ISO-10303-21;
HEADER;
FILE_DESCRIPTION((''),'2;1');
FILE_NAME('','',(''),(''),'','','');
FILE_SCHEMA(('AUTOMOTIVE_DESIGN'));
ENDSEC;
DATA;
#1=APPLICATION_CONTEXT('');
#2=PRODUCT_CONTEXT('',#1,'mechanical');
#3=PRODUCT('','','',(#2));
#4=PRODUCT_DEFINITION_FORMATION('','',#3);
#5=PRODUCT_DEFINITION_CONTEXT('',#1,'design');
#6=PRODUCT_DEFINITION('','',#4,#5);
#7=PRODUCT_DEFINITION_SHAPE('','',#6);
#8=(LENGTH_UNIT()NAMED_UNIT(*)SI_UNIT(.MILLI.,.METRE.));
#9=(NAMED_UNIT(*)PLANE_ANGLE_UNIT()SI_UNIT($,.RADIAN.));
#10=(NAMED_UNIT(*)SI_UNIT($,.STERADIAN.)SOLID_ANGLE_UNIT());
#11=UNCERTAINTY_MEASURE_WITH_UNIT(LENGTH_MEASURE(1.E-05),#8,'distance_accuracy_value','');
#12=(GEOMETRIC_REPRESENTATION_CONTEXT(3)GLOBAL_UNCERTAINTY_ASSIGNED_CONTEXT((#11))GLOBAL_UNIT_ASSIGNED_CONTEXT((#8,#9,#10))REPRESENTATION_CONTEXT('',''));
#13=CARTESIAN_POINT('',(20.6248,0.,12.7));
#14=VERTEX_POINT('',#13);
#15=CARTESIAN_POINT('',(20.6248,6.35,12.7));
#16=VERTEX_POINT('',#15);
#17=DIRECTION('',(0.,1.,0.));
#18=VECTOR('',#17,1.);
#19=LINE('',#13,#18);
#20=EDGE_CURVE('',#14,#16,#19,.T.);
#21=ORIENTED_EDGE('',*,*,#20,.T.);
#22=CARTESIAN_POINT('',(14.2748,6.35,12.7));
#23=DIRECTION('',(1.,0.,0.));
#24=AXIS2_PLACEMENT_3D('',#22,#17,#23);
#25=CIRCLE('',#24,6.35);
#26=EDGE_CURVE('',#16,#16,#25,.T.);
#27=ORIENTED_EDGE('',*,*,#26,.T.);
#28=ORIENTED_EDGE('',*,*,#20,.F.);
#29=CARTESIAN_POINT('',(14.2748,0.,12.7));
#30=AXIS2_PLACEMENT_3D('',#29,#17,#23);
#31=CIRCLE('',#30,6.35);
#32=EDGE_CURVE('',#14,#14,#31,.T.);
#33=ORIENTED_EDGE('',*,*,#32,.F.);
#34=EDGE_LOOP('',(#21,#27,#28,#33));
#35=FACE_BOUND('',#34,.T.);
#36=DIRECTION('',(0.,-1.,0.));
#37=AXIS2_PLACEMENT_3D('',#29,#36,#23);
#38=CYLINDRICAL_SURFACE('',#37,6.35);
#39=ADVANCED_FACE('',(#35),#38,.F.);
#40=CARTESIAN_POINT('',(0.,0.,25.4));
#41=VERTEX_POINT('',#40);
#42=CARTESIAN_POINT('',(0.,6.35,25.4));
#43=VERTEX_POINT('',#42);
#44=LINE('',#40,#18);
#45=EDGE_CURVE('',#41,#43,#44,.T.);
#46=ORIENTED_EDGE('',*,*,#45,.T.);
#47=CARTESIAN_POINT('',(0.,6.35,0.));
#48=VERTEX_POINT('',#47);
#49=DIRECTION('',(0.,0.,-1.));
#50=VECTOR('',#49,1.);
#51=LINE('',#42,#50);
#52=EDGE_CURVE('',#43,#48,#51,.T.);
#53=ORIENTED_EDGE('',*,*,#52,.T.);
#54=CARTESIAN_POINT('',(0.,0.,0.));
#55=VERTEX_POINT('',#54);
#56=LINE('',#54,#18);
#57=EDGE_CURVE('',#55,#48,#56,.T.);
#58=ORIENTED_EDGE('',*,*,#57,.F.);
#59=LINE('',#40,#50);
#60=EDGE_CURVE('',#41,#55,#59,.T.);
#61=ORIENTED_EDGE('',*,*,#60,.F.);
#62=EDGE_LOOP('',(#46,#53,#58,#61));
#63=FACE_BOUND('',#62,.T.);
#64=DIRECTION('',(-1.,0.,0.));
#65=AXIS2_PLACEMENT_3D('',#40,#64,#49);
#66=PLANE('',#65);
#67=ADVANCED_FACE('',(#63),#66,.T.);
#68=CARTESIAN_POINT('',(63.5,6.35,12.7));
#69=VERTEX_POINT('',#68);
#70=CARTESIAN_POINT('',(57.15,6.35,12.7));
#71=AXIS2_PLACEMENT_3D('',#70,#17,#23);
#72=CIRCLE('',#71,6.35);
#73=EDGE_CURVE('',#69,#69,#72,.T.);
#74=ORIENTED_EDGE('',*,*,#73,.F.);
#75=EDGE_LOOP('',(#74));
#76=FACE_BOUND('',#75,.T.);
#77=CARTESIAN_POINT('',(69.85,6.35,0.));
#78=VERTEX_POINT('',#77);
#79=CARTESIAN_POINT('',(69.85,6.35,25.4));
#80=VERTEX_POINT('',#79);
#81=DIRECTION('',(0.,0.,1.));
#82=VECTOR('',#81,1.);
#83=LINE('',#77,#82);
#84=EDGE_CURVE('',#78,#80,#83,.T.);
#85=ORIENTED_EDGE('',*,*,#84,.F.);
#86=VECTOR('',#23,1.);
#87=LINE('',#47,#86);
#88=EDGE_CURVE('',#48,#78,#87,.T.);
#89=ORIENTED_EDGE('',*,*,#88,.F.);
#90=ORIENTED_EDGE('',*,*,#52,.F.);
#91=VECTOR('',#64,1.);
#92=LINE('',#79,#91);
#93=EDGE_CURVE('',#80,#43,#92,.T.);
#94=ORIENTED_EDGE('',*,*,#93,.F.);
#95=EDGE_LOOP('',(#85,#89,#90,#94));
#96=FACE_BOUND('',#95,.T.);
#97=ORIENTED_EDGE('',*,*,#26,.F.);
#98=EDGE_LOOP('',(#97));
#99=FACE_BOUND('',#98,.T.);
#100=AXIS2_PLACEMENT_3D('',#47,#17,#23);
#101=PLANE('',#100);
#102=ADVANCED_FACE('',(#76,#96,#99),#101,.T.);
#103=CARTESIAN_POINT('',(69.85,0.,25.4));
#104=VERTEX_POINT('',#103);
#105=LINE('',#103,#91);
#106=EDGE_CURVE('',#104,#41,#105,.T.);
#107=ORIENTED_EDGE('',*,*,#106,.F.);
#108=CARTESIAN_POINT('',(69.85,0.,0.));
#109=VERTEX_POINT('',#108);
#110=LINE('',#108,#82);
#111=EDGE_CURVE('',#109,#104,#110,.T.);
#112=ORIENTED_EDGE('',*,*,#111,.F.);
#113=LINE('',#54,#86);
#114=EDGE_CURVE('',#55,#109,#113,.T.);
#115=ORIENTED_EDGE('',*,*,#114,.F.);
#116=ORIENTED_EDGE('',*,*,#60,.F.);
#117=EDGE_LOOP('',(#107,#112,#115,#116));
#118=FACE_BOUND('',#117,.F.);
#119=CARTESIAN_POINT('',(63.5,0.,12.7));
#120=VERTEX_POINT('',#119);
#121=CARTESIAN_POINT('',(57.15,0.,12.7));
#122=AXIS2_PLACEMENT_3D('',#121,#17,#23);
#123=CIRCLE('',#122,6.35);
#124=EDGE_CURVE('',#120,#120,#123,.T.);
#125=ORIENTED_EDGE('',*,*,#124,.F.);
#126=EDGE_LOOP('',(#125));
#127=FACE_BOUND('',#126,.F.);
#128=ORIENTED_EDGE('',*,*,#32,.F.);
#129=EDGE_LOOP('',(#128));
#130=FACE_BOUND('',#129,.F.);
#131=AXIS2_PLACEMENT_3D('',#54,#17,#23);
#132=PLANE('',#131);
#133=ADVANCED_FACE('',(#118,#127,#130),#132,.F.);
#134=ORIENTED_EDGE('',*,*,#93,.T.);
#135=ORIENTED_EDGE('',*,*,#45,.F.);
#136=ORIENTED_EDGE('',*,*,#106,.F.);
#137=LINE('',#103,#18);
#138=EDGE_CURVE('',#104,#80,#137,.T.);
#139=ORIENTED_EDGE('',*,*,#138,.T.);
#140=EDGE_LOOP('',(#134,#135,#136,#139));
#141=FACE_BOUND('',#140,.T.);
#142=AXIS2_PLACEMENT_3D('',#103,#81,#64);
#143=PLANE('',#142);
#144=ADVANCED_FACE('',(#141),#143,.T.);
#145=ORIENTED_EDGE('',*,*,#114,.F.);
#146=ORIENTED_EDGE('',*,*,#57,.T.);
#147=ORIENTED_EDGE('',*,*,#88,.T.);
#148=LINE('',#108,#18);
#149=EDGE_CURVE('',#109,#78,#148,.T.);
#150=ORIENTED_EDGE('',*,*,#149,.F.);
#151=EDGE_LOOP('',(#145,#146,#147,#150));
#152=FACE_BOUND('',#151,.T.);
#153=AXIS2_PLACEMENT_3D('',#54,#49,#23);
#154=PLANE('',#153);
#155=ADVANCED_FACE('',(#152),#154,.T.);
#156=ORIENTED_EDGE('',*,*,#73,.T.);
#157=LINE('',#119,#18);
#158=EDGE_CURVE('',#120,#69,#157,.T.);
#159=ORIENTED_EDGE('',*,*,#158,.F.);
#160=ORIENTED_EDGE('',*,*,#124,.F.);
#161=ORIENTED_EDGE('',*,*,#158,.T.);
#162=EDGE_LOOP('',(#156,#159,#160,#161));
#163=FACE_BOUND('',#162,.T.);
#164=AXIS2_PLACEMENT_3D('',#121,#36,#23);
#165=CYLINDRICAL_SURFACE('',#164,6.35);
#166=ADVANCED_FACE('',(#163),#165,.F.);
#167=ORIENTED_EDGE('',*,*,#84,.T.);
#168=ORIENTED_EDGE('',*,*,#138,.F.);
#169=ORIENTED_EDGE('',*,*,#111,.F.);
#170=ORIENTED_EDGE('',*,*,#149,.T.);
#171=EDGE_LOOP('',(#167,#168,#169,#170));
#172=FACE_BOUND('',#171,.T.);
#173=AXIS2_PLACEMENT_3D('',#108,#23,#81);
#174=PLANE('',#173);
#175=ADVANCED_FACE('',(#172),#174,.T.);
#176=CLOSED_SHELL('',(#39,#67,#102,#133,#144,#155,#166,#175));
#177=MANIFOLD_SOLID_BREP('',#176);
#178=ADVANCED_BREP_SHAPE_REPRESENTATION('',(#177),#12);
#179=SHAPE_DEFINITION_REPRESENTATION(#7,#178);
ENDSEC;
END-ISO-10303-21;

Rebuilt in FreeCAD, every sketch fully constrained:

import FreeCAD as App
import Part
import Sketcher
from FreeCAD import Vector
Q = App.Units.Quantity


def add_polygon(sketch, points):
    """Adds a closed chain of lines whose ends are joined by coincident constraints."""
    first, n = sketch.GeometryCount, len(points)
    for a, b in zip(points, points[1:] + points[:1]):
        sketch.addGeometry(Part.LineSegment(App.Vector(*a, 0), App.Vector(*b, 0)), False)
    for i in range(n):
        sketch.addConstraint(Sketcher.Constraint("Coincident", first + i, 2, first + (i + 1) % n, 1))

doc = App.newDocument("Part")
body = doc.addObject("PartDesign::Body", "Body")

# Sketch on XZ plane
sketch1 = body.newObject("Sketcher::SketchObject", "Sketch")
sketch1.AttachmentSupport = (doc.getObject("XZ_Plane"), [""])
sketch1.MapMode = "FlatFace"
add_polygon(sketch1, [(70, 0), (0, 0), (0, 25), (70, 25)])  # lines 0-3
sketch1.addGeometry(Part.Circle(Vector(14, 13, 0), Vector(0, 0, 1), 6), False)  # 4
sketch1.addGeometry(Part.Circle(Vector(57, 13, 0), Vector(0, 0, 1), 6), False)  # 5
sketch1.addConstraint(Sketcher.Constraint("Horizontal", 0))
sketch1.addConstraint(Sketcher.Constraint("Vertical", 1))
sketch1.addConstraint(Sketcher.Constraint("Horizontal", 2))
sketch1.addConstraint(Sketcher.Constraint("Vertical", 3))
sketch1.addConstraint(Sketcher.Constraint("Coincident", 0, 2, -1, 1))
sketch1.addConstraint(Sketcher.Constraint("Equal", 4, 5))
sketch1.addConstraint(Sketcher.Constraint("Horizontal", 4, 3, 5, 3))
sketch1.addConstraint(Sketcher.Constraint("Diameter", 4, Q("0.5 in")))
sketch1.addConstraint(Sketcher.Constraint("DistanceY", 1, 1, 1, 2, Q("1 in")))
sketch1.addConstraint(Sketcher.Constraint("DistanceX", 0, 2, 0, 1, Q("2.75 in")))
sketch1.addConstraint(Sketcher.Constraint("DistanceY", -1, 1, 4, 3, Q("0.5 in")))
sketch1.addConstraint(Sketcher.Constraint("DistanceX", 5, 3, 2, 2, Q("0.5 in")))
sketch1.addConstraint(Sketcher.Constraint("DistanceX", -1, 1, 4, 3, Q("0.562 in")))
pad1 = body.newObject("PartDesign::Pad", "Pad")
pad1.Profile = sketch1
pad1.Length = Q("0.25 in")
pad1.Reversed = True

doc.recompute()
